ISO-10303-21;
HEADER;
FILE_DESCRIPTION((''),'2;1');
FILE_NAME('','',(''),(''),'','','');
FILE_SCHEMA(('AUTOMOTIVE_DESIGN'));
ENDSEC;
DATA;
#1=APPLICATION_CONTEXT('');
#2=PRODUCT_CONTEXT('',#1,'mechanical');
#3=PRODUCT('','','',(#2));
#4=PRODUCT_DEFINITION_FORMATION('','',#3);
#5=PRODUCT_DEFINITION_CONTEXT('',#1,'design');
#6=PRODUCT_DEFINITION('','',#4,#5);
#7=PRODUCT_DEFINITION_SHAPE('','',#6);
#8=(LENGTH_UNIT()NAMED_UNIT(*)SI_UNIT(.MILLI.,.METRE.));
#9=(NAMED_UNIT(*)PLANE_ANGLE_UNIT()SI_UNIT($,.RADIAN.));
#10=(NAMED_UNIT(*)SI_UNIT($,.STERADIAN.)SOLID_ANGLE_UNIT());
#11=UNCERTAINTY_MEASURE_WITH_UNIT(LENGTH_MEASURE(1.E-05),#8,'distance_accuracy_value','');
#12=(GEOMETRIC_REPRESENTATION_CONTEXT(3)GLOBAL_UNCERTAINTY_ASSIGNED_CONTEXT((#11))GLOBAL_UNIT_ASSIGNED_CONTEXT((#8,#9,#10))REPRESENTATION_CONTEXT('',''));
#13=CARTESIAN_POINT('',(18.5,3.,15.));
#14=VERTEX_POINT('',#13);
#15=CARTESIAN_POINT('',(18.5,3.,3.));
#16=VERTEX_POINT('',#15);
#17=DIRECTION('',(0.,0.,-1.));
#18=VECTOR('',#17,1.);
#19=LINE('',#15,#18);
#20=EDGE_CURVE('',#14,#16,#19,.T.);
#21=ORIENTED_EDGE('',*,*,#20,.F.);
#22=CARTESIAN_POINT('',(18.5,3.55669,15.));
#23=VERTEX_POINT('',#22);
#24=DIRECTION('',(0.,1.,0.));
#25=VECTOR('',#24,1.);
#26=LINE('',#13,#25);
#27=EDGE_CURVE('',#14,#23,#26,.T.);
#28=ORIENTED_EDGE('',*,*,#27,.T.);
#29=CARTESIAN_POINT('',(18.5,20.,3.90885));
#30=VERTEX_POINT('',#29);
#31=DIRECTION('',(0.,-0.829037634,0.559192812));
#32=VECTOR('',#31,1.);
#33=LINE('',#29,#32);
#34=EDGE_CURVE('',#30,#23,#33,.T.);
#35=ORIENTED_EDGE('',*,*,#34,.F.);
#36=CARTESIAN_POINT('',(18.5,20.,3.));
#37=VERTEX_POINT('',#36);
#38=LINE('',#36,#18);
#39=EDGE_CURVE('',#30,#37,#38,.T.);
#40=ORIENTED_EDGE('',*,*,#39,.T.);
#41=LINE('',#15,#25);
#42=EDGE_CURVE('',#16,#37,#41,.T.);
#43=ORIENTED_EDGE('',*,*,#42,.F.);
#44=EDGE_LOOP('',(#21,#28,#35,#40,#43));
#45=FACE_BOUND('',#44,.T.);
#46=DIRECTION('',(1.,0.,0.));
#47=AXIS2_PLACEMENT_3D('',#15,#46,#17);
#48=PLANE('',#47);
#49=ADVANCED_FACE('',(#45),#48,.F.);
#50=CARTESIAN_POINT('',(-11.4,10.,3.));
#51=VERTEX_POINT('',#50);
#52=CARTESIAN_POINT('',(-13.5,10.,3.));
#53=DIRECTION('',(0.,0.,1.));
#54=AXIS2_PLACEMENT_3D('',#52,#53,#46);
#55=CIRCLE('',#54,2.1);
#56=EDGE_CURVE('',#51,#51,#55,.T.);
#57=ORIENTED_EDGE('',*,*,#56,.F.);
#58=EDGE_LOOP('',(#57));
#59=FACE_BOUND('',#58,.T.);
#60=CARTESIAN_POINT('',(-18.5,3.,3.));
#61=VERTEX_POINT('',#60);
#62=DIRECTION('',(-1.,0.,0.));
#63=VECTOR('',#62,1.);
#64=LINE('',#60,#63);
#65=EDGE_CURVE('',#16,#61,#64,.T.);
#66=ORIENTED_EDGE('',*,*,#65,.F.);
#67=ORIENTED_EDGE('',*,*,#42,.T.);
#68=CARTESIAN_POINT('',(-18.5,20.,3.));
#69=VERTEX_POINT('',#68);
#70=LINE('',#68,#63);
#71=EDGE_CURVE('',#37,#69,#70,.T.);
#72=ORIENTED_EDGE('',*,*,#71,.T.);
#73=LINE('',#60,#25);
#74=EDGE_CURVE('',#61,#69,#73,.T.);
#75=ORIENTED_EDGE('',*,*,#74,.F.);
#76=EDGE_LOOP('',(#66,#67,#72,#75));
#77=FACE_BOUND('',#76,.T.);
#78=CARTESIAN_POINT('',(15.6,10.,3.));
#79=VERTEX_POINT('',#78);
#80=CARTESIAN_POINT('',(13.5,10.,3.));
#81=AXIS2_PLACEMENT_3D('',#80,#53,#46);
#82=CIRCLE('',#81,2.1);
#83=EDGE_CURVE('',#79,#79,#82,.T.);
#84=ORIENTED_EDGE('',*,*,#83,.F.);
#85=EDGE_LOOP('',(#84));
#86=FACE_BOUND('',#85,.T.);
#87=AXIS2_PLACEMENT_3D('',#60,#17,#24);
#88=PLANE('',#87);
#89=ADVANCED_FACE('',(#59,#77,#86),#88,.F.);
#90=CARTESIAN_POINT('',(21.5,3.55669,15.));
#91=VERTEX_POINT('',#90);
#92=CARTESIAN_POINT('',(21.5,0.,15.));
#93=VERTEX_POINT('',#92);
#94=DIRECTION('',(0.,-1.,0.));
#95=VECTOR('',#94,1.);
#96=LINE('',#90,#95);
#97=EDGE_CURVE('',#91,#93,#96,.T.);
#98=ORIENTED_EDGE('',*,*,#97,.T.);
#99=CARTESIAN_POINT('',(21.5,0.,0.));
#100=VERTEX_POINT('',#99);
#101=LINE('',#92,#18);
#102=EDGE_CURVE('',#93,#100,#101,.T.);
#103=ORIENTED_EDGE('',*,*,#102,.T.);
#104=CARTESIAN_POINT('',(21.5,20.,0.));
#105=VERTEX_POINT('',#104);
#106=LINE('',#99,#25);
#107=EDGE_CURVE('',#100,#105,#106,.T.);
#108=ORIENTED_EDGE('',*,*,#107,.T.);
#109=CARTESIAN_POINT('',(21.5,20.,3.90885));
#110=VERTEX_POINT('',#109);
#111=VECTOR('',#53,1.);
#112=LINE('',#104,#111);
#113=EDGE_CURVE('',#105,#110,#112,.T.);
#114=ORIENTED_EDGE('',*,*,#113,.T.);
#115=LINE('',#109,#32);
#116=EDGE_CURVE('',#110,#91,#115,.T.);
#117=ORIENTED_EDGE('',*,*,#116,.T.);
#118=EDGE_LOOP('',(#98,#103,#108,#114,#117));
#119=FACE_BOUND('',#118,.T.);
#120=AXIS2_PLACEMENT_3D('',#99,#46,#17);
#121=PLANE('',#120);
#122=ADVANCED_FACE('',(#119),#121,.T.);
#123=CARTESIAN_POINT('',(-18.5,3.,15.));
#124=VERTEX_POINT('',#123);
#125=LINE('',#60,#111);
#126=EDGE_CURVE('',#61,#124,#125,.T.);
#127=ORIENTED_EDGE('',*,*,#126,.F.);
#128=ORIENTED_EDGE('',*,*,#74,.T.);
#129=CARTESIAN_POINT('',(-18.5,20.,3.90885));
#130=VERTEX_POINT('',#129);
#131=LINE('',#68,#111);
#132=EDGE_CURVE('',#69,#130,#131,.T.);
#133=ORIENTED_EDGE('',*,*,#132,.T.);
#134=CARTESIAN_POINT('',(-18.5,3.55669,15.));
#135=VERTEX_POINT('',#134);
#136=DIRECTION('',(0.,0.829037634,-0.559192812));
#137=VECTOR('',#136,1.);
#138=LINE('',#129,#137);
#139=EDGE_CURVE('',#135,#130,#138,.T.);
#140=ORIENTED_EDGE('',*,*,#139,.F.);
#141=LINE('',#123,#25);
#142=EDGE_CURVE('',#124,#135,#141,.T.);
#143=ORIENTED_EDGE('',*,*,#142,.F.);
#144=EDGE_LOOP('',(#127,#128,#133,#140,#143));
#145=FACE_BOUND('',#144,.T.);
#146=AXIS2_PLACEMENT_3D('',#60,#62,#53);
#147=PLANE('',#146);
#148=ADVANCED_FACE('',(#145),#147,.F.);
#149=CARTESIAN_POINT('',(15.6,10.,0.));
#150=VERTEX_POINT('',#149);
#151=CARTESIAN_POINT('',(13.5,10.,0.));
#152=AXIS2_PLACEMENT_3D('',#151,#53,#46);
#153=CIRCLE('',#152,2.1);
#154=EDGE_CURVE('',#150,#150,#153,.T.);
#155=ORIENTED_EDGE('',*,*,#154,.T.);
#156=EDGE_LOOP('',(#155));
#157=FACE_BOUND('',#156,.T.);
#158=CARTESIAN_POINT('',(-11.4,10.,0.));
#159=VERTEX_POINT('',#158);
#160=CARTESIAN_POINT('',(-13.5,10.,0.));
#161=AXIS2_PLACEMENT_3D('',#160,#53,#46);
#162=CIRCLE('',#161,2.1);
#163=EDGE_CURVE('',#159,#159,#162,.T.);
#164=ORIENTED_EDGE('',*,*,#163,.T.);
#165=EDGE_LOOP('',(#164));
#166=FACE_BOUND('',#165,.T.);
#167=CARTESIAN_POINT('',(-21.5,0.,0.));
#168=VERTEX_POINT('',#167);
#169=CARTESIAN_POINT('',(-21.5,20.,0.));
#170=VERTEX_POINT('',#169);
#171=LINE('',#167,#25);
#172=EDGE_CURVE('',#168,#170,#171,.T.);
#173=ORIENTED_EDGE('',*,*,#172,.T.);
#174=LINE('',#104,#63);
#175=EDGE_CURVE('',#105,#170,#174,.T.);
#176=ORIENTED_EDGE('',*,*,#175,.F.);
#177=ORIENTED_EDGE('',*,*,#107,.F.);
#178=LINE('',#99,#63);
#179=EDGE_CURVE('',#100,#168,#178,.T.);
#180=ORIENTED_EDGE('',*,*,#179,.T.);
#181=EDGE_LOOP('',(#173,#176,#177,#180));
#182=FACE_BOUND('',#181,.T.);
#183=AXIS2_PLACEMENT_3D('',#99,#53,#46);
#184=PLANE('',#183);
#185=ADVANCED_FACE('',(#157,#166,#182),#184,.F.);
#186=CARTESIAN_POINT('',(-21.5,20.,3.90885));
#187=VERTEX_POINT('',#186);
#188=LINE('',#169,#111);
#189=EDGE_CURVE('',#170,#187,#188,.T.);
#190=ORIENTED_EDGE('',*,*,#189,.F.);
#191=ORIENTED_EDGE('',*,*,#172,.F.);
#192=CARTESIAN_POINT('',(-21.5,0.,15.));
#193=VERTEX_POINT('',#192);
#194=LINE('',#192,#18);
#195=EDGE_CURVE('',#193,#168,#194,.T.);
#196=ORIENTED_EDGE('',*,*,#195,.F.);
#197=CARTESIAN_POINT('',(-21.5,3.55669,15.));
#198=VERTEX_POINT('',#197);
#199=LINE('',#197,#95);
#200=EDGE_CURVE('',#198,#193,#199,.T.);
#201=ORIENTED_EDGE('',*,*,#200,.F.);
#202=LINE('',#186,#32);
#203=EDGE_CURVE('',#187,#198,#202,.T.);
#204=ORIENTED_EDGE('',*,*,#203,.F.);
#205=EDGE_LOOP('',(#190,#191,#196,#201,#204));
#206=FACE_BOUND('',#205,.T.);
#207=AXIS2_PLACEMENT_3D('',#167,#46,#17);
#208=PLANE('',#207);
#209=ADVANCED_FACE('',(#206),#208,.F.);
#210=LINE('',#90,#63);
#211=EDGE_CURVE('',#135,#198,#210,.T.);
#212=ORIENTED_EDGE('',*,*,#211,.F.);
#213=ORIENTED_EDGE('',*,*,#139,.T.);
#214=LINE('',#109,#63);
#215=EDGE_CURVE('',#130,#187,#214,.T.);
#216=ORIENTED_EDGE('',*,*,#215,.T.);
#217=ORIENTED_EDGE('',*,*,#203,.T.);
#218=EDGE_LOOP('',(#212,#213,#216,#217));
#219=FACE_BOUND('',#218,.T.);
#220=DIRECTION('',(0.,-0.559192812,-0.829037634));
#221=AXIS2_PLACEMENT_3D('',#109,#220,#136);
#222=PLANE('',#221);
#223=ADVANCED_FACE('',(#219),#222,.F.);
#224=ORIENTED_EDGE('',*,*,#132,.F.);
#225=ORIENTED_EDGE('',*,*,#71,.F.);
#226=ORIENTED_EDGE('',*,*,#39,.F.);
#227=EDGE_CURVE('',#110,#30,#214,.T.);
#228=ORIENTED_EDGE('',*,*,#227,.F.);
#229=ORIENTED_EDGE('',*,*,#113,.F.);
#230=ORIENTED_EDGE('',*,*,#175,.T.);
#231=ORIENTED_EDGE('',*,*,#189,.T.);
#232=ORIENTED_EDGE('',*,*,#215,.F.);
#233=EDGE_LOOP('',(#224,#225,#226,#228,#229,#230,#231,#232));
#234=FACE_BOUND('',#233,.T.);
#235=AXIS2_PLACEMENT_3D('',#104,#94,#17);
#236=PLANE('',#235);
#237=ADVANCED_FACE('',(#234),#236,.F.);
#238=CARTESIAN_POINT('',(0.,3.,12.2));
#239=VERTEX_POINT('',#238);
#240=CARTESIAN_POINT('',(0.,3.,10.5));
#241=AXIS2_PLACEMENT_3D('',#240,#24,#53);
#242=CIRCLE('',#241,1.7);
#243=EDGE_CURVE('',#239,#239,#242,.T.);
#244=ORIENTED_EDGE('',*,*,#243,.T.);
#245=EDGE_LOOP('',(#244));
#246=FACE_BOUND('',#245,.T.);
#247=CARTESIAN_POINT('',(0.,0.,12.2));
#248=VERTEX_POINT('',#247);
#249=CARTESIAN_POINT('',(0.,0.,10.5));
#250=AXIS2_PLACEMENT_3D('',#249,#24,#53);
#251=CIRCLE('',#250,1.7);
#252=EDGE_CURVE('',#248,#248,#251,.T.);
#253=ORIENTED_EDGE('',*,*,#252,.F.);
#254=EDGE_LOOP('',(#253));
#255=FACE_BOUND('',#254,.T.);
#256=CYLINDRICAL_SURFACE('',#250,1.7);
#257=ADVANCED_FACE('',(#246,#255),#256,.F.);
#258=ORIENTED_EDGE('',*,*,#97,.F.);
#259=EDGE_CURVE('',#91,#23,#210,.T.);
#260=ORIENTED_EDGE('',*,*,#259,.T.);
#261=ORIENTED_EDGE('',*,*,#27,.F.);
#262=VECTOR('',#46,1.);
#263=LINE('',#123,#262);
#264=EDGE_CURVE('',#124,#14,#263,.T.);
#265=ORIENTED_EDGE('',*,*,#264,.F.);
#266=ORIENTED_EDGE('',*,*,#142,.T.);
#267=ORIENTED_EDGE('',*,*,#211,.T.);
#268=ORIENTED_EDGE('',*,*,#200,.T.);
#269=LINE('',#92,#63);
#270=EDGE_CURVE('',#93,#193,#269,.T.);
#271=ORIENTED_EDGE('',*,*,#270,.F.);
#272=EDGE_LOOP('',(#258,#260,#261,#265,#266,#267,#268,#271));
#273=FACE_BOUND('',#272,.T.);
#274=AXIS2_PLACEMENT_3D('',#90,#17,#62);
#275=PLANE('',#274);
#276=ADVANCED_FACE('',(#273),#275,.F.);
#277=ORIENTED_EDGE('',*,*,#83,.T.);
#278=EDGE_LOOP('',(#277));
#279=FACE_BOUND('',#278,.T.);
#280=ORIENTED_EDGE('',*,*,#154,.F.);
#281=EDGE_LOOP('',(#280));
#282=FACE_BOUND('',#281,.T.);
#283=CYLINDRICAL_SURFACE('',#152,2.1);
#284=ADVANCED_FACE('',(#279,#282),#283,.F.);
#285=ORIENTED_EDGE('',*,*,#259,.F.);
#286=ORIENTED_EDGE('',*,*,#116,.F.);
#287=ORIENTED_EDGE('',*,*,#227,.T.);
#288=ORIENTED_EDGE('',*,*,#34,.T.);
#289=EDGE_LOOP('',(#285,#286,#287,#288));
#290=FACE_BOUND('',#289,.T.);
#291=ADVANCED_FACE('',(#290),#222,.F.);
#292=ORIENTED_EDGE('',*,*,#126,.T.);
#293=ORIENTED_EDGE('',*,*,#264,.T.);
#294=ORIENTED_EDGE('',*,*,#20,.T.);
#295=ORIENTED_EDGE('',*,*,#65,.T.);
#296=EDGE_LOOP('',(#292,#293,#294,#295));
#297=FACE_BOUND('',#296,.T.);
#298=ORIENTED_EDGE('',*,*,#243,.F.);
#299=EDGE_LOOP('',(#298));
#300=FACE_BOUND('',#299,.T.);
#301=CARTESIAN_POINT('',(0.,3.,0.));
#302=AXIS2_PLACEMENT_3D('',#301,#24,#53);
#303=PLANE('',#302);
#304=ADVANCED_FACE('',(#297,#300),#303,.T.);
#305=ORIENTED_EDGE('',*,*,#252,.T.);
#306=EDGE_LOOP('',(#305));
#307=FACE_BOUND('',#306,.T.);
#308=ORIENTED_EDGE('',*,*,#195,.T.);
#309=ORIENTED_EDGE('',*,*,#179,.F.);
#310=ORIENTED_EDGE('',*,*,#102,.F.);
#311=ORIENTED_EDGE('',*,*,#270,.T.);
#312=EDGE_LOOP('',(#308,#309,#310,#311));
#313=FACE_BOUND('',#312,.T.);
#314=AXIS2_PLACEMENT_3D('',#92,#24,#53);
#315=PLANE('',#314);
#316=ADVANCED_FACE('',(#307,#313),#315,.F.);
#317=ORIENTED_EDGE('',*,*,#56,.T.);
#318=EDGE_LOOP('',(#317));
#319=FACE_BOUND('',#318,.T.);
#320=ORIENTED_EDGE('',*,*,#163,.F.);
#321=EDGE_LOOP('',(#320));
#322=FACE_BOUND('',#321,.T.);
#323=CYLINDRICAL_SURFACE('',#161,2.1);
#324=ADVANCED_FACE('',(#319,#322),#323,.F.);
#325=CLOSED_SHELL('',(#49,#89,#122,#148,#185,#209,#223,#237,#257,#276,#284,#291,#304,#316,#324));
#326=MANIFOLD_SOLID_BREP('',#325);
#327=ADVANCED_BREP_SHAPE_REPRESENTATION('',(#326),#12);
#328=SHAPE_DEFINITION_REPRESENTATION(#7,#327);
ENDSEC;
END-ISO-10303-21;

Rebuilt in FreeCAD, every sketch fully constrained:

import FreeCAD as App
import Part
import Sketcher

V = App.Vector
Q = App.Units.Quantity

doc = App.newDocument("Part")
params = doc.addObject("Spreadsheet::Sheet", "Params")
for row, (alias, value) in enumerate([
    ("sketch1_width", "20 mm"),
    ("sketch1_height", "15 mm"),
    ("pad1_length", "43 mm"),
    ("sketch2_width", "37 mm"),
    ("sketch2_height", "12 mm"),
    ("pocket1_length", "17 mm"),
    ("sketch3_diameter", "4.2 mm"),
    ("sketch4_diameter", "3.4 mm"),
], start=1):
    params.set(f"A{row}", alias)
    params.set(f"B{row}", "=" + value)
    params.setAlias(f"B{row}", alias)

body = doc.addObject("PartDesign::Body", "Body")

sketch1 = body.newObject("Sketcher::SketchObject", "Sketch")
sketch1.AttachmentSupport = (doc.getObject("YZ_Plane"), [""])
sketch1.MapMode = "FlatFace"
sketch1.addGeometry([
    Part.LineSegment(V(0, 0, 0), V(20, 0, 0)),
    Part.LineSegment(V(20, 0, 0), V(20, 3.90885, 0)),
    Part.LineSegment(V(20, 3.90885, 0), V(3.55669, 15, 0)),
    Part.LineSegment(V(3.55669, 15, 0), V(0, 15, 0)),
    Part.LineSegment(V(0, 15, 0), V(0, 0, 0)),
], False)
sketch1.addConstraint([
    Sketcher.Constraint("Coincident", 0, 2, 1, 1),
    Sketcher.Constraint("Coincident", 1, 2, 2, 1),
    Sketcher.Constraint("Coincident", 2, 2, 3, 1),
    Sketcher.Constraint("Coincident", 3, 2, 4, 1),
    Sketcher.Constraint("Coincident", 4, 2, 0, 1),
    Sketcher.Constraint("Horizontal", 0),
    Sketcher.Constraint("Vertical", 1),
    Sketcher.Constraint("Horizontal", 3),
    Sketcher.Constraint("Vertical", 4),
    Sketcher.Constraint("Coincident", 4, 2, -1, 1),
    Sketcher.Constraint("DistanceX", 0, 1, 0, 2, Q("20 mm")),
    Sketcher.Constraint("DistanceY", 4, 2, 4, 1, Q("15 mm")),
    Sketcher.Constraint("Angle", 2, Q("146.000006 deg")),
    Sketcher.Constraint("DistanceX", 3, 2, 3, 1, Q("3.55669 mm")),
])
sketch1.setExpression("Constraints[10]", "Params.sketch1_width")
sketch1.setExpression("Constraints[11]", "Params.sketch1_height")
pad1 = body.newObject("PartDesign::Pad", "Pad")
pad1.Profile = sketch1
pad1.setExpression("Length", "Params.pad1_length")
pad1.Midplane = True

sketch2 = body.newObject("Sketcher::SketchObject", "Sketch001")
sketch2.AttachmentSupport = (doc.getObject("XZ_Plane"), [""])
sketch2.MapMode = "FlatFace"
sketch2.AttachmentOffset = App.Placement(V(0, 0, -20), App.Rotation())
sketch2.addGeometry([
    Part.LineSegment(V(-18.5, 3, 0), V(-18.5, 15, 0)),
    Part.LineSegment(V(-18.5, 15, 0), V(18.5, 15, 0)),
    Part.LineSegment(V(18.5, 15, 0), V(18.5, 3, 0)),
    Part.LineSegment(V(18.5, 3, 0), V(-18.5, 3, 0)),
], False)
sketch2.addConstraint([
    Sketcher.Constraint("Coincident", 0, 2, 1, 1),
    Sketcher.Constraint("Coincident", 1, 2, 2, 1),
    Sketcher.Constraint("Coincident", 2, 2, 3, 1),
    Sketcher.Constraint("Coincident", 3, 2, 0, 1),
    Sketcher.Constraint("Vertical", 0),
    Sketcher.Constraint("Horizontal", 1),
    Sketcher.Constraint("Vertical", 2),
    Sketcher.Constraint("Horizontal", 3),
    Sketcher.Constraint("DistanceX", 1, 1, 1, 2, Q("37 mm")),
    Sketcher.Constraint("DistanceY", 0, 1, 0, 2, Q("12 mm")),
    Sketcher.Constraint("DistanceY", -1, 1, 0, 2, Q("15 mm")),
    Sketcher.Constraint("DistanceX", 0, 2, -1, 1, Q("18.5 mm")),
])
sketch2.setExpression("Constraints[8]", "Params.sketch2_width")
sketch2.setExpression("Constraints[9]", "Params.sketch2_height")
pocket1 = body.newObject("PartDesign::Pocket", "Pocket")
pocket1.Profile = sketch2
pocket1.setExpression("Length", "Params.pocket1_length")
pocket1.Reversed = True

sketch3 = body.newObject("Sketcher::SketchObject", "Sketch002")
sketch3.AttachmentSupport = (doc.getObject("XY_Plane"), [""])
sketch3.MapMode = "FlatFace"
sketch3.AttachmentOffset = App.Placement(V(0, 0, 3), App.Rotation())
sketch3.addGeometry([
    Part.Circle(V(-13.5, 10, 0), V(0, 0, 1), 2.1),
    Part.Circle(V(13.5, 10, 0), V(0, 0, 1), 2.1),
], False)
sketch3.addConstraint([
    Sketcher.Constraint("Equal", 0, 1),
    Sketcher.Constraint("Symmetric", 0, 3, 1, 3, -2),
    Sketcher.Constraint("Diameter", 0, Q("4.2 mm")),
    Sketcher.Constraint("DistanceY", -1, 1, 0, 3, Q("10 mm")),
    Sketcher.Constraint("DistanceX", 0, 3, 1, 3, Q("27 mm")),
])
sketch3.setExpression("Constraints[2]", "Params.sketch3_diameter")
pocket2 = body.newObject("PartDesign::Pocket", "Pocket001")
pocket2.Profile = sketch3
pocket2.Type = "ThroughAll"

sketch4 = body.newObject("Sketcher::SketchObject", "Sketch003")
sketch4.AttachmentSupport = (doc.getObject("XZ_Plane"), [""])
sketch4.MapMode = "FlatFace"
sketch4.AttachmentOffset = App.Placement(V(0, 0, -3), App.Rotation())
sketch4.addGeometry(Part.Circle(V(0, 10.5, 0), V(0, 0, 1), 1.7), False)
sketch4.addConstraint([
    Sketcher.Constraint("PointOnObject", 0, 3, -2),
    Sketcher.Constraint("Diameter", 0, Q("3.4 mm")),
    Sketcher.Constraint("DistanceY", -1, 1, 0, 3, Q("10.5 mm")),
])
sketch4.setExpression("Constraints[1]", "Params.sketch4_diameter")
pocket3 = body.newObject("PartDesign::Pocket", "Pocket002")
pocket3.Profile = sketch4
pocket3.Type = "ThroughAll"
pocket3.Reversed = True

doc.recompute()
